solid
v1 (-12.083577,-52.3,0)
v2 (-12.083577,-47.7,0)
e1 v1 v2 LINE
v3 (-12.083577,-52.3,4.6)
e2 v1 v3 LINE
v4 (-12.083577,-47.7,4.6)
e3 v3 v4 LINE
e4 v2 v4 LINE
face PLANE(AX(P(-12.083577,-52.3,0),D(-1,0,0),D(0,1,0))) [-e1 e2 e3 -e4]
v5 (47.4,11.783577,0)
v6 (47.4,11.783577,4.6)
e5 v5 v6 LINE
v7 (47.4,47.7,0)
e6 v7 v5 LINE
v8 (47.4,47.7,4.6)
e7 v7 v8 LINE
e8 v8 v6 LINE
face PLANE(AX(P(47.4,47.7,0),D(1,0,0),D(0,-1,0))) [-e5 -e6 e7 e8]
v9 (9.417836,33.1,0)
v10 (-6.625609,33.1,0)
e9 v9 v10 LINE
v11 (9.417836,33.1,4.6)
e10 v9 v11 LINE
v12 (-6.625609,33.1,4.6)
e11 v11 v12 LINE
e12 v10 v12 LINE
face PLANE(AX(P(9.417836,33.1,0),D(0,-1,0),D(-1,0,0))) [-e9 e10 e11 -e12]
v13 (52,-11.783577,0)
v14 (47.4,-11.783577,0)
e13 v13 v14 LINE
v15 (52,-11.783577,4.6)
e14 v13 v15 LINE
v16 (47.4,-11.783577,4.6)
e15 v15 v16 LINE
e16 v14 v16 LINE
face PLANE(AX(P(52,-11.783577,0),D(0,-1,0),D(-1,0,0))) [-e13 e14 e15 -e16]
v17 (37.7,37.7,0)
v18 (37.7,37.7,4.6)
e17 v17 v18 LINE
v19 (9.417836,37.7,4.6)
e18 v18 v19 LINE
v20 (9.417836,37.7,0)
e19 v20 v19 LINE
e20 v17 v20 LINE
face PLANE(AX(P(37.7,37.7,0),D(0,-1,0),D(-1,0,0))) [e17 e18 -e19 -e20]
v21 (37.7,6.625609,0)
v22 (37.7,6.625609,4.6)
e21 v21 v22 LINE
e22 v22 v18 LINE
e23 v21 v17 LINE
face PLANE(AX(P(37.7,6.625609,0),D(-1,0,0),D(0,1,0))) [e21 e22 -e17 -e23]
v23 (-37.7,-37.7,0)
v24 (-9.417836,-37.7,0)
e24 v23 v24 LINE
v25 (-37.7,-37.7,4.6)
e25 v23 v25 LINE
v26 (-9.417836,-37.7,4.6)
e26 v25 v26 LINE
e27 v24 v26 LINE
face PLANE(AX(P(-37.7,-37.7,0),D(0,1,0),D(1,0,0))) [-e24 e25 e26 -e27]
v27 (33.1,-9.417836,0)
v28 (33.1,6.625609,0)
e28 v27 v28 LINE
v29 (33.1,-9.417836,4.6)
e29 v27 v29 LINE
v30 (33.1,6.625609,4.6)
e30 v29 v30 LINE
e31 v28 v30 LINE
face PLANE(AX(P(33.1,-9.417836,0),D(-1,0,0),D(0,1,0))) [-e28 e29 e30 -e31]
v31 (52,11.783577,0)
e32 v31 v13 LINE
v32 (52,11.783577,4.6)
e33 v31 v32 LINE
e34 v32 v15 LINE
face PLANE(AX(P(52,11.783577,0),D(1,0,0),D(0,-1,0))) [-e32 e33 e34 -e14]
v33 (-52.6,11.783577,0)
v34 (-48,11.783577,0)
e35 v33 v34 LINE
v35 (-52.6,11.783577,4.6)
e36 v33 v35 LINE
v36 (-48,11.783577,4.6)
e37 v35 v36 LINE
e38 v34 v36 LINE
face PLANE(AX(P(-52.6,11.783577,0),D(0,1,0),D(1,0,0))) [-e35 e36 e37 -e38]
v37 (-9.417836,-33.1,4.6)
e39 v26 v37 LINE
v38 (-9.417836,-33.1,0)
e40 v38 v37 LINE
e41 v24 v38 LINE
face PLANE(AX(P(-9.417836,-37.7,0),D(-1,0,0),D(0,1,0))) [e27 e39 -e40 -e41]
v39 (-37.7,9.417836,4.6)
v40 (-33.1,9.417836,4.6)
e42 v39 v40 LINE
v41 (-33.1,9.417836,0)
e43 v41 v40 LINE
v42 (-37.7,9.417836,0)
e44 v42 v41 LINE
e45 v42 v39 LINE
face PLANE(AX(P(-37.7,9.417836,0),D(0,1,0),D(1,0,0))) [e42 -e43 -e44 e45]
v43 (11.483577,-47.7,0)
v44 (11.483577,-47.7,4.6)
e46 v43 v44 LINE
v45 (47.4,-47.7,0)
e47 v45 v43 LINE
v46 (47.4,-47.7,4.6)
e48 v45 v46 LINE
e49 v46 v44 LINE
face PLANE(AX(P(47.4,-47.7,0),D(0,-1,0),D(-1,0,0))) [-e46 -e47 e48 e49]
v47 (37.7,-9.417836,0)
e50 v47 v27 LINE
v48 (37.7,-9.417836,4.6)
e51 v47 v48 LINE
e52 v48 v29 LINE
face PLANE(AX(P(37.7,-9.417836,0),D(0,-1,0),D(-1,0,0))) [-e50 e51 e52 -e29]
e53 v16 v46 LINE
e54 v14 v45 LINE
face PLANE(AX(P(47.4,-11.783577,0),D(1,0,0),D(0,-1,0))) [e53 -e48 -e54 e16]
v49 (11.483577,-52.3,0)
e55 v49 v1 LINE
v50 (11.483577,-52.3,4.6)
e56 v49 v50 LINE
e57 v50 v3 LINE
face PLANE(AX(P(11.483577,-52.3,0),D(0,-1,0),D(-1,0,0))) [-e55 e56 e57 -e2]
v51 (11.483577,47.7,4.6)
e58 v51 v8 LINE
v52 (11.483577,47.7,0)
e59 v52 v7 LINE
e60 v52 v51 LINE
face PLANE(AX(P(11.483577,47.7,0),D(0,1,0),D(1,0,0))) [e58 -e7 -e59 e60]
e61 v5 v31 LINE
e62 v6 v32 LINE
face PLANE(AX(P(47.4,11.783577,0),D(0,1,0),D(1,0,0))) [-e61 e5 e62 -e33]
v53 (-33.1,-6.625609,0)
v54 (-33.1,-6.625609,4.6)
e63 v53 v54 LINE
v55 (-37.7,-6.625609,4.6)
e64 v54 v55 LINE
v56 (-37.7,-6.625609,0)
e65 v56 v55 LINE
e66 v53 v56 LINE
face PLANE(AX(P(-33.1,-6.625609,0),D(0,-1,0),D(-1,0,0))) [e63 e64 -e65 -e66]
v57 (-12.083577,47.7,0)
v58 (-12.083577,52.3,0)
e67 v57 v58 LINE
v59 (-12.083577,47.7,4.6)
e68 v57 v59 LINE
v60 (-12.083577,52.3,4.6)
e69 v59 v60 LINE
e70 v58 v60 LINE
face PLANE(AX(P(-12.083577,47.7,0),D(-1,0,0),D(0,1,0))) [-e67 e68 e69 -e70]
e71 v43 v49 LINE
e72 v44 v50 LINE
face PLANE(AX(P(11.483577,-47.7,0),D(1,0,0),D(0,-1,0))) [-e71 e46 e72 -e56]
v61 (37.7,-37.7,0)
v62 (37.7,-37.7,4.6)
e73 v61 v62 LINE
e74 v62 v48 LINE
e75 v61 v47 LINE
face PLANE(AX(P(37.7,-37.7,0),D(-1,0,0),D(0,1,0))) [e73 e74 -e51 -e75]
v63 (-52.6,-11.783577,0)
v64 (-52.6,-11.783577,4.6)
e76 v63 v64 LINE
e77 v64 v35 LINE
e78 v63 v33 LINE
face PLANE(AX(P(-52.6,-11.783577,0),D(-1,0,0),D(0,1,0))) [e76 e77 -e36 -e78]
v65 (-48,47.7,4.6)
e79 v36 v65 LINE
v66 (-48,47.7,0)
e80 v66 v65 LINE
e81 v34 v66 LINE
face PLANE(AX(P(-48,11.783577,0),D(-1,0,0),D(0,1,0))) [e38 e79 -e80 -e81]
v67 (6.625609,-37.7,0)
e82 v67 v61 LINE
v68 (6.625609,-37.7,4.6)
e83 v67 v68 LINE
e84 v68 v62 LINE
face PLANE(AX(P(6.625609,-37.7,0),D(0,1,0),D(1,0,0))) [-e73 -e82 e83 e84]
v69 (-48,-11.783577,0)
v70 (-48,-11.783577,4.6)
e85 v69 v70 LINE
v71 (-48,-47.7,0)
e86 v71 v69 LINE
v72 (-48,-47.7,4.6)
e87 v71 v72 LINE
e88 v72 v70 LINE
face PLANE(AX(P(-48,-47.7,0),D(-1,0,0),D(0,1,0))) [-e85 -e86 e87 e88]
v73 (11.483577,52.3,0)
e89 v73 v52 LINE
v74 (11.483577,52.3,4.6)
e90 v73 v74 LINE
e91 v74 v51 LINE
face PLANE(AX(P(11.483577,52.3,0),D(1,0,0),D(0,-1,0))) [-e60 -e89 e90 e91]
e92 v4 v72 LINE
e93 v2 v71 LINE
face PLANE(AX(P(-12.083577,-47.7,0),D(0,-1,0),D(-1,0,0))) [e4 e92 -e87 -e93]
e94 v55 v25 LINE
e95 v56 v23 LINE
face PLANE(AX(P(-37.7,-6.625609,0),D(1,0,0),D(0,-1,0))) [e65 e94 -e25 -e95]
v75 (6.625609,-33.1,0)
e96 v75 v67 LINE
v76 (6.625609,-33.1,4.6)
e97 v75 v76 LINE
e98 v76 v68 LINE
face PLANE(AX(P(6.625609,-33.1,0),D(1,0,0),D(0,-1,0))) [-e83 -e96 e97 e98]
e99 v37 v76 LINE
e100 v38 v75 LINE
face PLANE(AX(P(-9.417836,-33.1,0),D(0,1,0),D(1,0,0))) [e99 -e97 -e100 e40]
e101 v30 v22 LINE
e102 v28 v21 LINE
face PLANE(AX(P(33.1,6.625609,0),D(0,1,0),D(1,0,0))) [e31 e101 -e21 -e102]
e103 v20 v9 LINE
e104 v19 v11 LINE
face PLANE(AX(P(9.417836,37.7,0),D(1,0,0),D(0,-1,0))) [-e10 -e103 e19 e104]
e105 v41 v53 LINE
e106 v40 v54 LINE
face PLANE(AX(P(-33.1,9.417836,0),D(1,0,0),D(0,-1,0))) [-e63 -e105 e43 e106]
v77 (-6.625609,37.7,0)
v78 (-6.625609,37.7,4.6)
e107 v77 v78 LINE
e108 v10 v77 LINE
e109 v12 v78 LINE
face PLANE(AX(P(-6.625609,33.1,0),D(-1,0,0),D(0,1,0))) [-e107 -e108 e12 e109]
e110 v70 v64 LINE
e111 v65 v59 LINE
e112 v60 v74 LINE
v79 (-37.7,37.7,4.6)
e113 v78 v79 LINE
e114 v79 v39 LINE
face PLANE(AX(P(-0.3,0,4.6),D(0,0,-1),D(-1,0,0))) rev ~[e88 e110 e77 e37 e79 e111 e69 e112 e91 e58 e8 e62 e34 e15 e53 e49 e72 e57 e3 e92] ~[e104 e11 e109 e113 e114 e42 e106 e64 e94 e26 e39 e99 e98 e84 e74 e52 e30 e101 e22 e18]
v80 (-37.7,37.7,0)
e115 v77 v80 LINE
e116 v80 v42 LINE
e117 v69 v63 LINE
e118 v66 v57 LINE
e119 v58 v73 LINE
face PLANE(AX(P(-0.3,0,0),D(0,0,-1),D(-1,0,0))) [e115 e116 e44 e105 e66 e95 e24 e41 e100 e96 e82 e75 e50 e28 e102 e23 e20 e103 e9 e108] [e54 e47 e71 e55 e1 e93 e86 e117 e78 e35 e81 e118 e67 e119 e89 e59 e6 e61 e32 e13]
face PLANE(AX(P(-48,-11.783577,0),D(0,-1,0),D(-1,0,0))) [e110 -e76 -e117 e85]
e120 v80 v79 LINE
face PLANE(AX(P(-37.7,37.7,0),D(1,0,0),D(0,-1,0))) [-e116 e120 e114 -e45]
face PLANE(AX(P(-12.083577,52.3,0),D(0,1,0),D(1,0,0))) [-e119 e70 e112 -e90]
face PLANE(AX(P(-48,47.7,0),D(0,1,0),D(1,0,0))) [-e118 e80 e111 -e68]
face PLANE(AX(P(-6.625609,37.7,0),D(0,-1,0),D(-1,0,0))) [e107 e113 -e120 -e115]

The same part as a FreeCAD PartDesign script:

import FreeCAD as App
import Part
import Sketcher

doc = App.newDocument("Part")
body = doc.addObject("PartDesign::Body", "Body")

sketch1 = body.newObject("Sketcher::SketchObject", "Sketch")
sketch1.AttachmentSupport = (doc.getObject("XY_Plane"), [""])
sketch1.MapMode = "FlatFace"
sketch1.addGeometry(Part.LineSegment(App.Vector(52, 11.8, 0), App.Vector(47.4, 11.8, 0)), False)
sketch1.addGeometry(Part.LineSegment(App.Vector(47.4, 11.8, 0), App.Vector(47.4, 47.7, 0)), False)
sketch1.addGeometry(Part.LineSegment(App.Vector(47.4, 47.7, 0), App.Vector(11.5, 47.7, 0)), False)
sketch1.addGeometry(Part.LineSegment(App.Vector(11.5, 47.7, 0), App.Vector(11.5, 52.3, 0)), False)
sketch1.addGeometry(Part.LineSegment(App.Vector(11.5, 52.3, 0), App.Vector(-12.1, 52.3, 0)), False)
sketch1.addGeometry(Part.LineSegment(App.Vector(-12.1, 52.3, 0), App.Vector(-12.1, 47.7, 0)), False)
sketch1.addGeometry(Part.LineSegment(App.Vector(-12.1, 47.7, 0), App.Vector(-48, 47.7, 0)), False)
sketch1.addGeometry(Part.LineSegment(App.Vector(-48, 47.7, 0), App.Vector(-48, 11.8, 0)), False)
sketch1.addGeometry(Part.LineSegment(App.Vector(-48, 11.8, 0), App.Vector(-52.6, 11.8, 0)), False)
sketch1.addGeometry(Part.LineSegment(App.Vector(-52.6, 11.8, 0), App.Vector(-52.6, -11.8, 0)), False)
sketch1.addGeometry(Part.LineSegment(App.Vector(-52.6, -11.8, 0), App.Vector(-48, -11.8, 0)), False)
sketch1.addGeometry(Part.LineSegment(App.Vector(-48, -11.8, 0), App.Vector(-48, -47.7, 0)), False)
sketch1.addGeometry(Part.LineSegment(App.Vector(-48, -47.7, 0), App.Vector(-12.1, -47.7, 0)), False)
sketch1.addGeometry(Part.LineSegment(App.Vector(-12.1, -47.7, 0), App.Vector(-12.1, -52.3, 0)), False)
sketch1.addGeometry(Part.LineSegment(App.Vector(-12.1, -52.3, 0), App.Vector(11.5, -52.3, 0)), False)
sketch1.addGeometry(Part.LineSegment(App.Vector(11.5, -52.3, 0), App.Vector(11.5, -47.7, 0)), False)
sketch1.addGeometry(Part.LineSegment(App.Vector(11.5, -47.7, 0), App.Vector(47.4, -47.7, 0)), False)
sketch1.addGeometry(Part.LineSegment(App.Vector(47.4, -47.7, 0), App.Vector(47.4, -11.8, 0)), False)
sketch1.addGeometry(Part.LineSegment(App.Vector(47.4, -11.8, 0), App.Vector(52, -11.8, 0)), False)
sketch1.addGeometry(Part.LineSegment(App.Vector(52, -11.8, 0), App.Vector(52, 11.8, 0)), False)
sketch1.addConstraint(Sketcher.Constraint("Coincident", 0, 2, 1, 1))
sketch1.addConstraint(Sketcher.Constraint("Coincident", 1, 2, 2, 1))
sketch1.addConstraint(Sketcher.Constraint("Coincident", 2, 2, 3, 1))
sketch1.addConstraint(Sketcher.Constraint("Coincident", 3, 2, 4, 1))
sketch1.addConstraint(Sketcher.Constraint("Coincident", 4, 2, 5, 1))
sketch1.addConstraint(Sketcher.Constraint("Coincident", 5, 2, 6, 1))
sketch1.addConstraint(Sketcher.Constraint("Coincident", 6, 2, 7, 1))
sketch1.addConstraint(Sketcher.Constraint("Coincident", 7, 2, 8, 1))
sketch1.addConstraint(Sketcher.Constraint("Coincident", 8, 2, 9, 1))
sketch1.addConstraint(Sketcher.Constraint("Coincident", 9, 2, 10, 1))
sketch1.addConstraint(Sketcher.Constraint("Coincident", 10, 2, 11, 1))
sketch1.addConstraint(Sketcher.Constraint("Coincident", 11, 2, 12, 1))
sketch1.addConstraint(Sketcher.Constraint("Coincident", 12, 2, 13, 1))
sketch1.addConstraint(Sketcher.Constraint("Coincident", 13, 2, 14, 1))
sketch1.addConstraint(Sketcher.Constraint("Coincident", 14, 2, 15, 1))
sketch1.addConstraint(Sketcher.Constraint("Coincident", 15, 2, 16, 1))
sketch1.addConstraint(Sketcher.Constraint("Coincident", 16, 2, 17, 1))
sketch1.addConstraint(Sketcher.Constraint("Coincident", 17, 2, 18, 1))
sketch1.addConstraint(Sketcher.Constraint("Coincident", 18, 2, 19, 1))
sketch1.addConstraint(Sketcher.Constraint("Coincident", 19, 2, 0, 1))
sketch1.addConstraint(Sketcher.Constraint("Horizontal", 0))
sketch1.addConstraint(Sketcher.Constraint("Vertical", 1))
sketch1.addConstraint(Sketcher.Constraint("Horizontal", 2))
sketch1.addConstraint(Sketcher.Constraint("Vertical", 3))
sketch1.addConstraint(Sketcher.Constraint("Horizontal", 4))
sketch1.addConstraint(Sketcher.Constraint("Vertical", 5))
sketch1.addConstraint(Sketcher.Constraint("Horizontal", 6))
sketch1.addConstraint(Sketcher.Constraint("Vertical", 7))
sketch1.addConstraint(Sketcher.Constraint("Horizontal", 8))
sketch1.addConstraint(Sketcher.Constraint("Vertical", 9))
sketch1.addConstraint(Sketcher.Constraint("Horizontal", 10))
sketch1.addConstraint(Sketcher.Constraint("Vertical", 11))
sketch1.addConstraint(Sketcher.Constraint("Horizontal", 12))
sketch1.addConstraint(Sketcher.Constraint("Vertical", 13))
sketch1.addConstraint(Sketcher.Constraint("Horizontal", 14))
sketch1.addConstraint(Sketcher.Constraint("Vertical", 15))
sketch1.addConstraint(Sketcher.Constraint("Horizontal", 16))
sketch1.addConstraint(Sketcher.Constraint("Vertical", 17))
sketch1.addConstraint(Sketcher.Constraint("Horizontal", 18))
sketch1.addConstraint(Sketcher.Constraint("Vertical", 19))
sketch1.addConstraint(Sketcher.Constraint("Symmetric", 7, 2, 10, 2, -1))
sketch1.addConstraint(Sketcher.Constraint("Symmetric", 5, 2, 12, 2, -1))
sketch1.addConstraint(Sketcher.Constraint("Symmetric", 3, 2, 14, 2, -1))
sketch1.addConstraint(Sketcher.Constraint("Symmetric", 1, 2, 16, 2, -1))
sketch1.addConstraint(Sketcher.Constraint("Horizontal", 2, 2, 5, 2))
sketch1.addConstraint(Sketcher.Constraint("Horizontal", 0, 2, 7, 2))
sketch1.addConstraint(Sketcher.Constraint("Horizontal", 10, 2, 17, 2))
sketch1.addConstraint(Sketcher.Constraint("Equal", 2, 6))
sketch1.addConstraint(Sketcher.Constraint("Equal", 0, 8))
sketch1.addConstraint(Sketcher.Constraint("Equal", 16, 1))
sketch1.addConstraint(Sketcher.Constraint("Equal", 18, 3))
sketch1.addConstraint(Sketcher.Constraint("Equal", 14, 9))
sketch1.addConstraint(Sketcher.Constraint("DistanceX", 0, 2, 0, 1, 4.6))
sketch1.addConstraint(Sketcher.Constraint("DistanceX", 6, 2, -1, 1, 48.0))
sketch1.addConstraint(Sketcher.Constraint("DistanceX", -1, 1, 18, 2, 52.0))
sketch1.addConstraint(Sketcher.Constraint("DistanceX", 2, 2, 2, 1, 35.916423))
pad1 = body.newObject("PartDesign::Pad", "Pad")
pad1.Profile = sketch1
pad1.Length = 4.6

sketch2 = body.newObject("Sketcher::SketchObject", "Sketch001")
sketch2.AttachmentSupport = (doc.getObject("XY_Plane"), [""])
sketch2.MapMode = "FlatFace"
sketch2.addGeometry(Part.LineSegment(App.Vector(-9.4, -33.1, 0), App.Vector(-9.4, -37.7, 0)), False)
sketch2.addGeometry(Part.LineSegment(App.Vector(-9.4, -37.7, 0), App.Vector(-37.7, -37.7, 0)), False)
sketch2.addGeometry(Part.LineSegment(App.Vector(-37.7, -37.7, 0), App.Vector(-37.7, -6.6, 0)), False)
sketch2.addGeometry(Part.LineSegment(App.Vector(-37.7, -6.6, 0), App.Vector(-33.1, -6.6, 0)), False)
sketch2.addGeometry(Part.LineSegment(App.Vector(-33.1, -6.6, 0), App.Vector(-33.1, 9.4, 0)), False)
sketch2.addGeometry(Part.LineSegment(App.Vector(-33.1, 9.4, 0), App.Vector(-37.7, 9.4, 0)), False)
sketch2.addGeometry(Part.LineSegment(App.Vector(-37.7, 9.4, 0), App.Vector(-37.7, 37.7, 0)), False)
sketch2.addGeometry(Part.LineSegment(App.Vector(-37.7, 37.7, 0), App.Vector(-6.6, 37.7, 0)), False)
sketch2.addGeometry(Part.LineSegment(App.Vector(-6.6, 37.7, 0), App.Vector(-6.6, 33.1, 0)), False)
sketch2.addGeometry(Part.LineSegment(App.Vector(-6.6, 33.1, 0), App.Vector(9.4, 33.1, 0)), False)
sketch2.addGeometry(Part.LineSegment(App.Vector(9.4, 33.1, 0), App.Vector(9.4, 37.7, 0)), False)
sketch2.addGeometry(Part.LineSegment(App.Vector(9.4, 37.7, 0), App.Vector(37.7, 37.7, 0)), False)
sketch2.addGeometry(Part.LineSegment(App.Vector(37.7, 37.7, 0), App.Vector(37.7, 6.6, 0)), False)
sketch2.addGeometry(Part.LineSegment(App.Vector(37.7, 6.6, 0), App.Vector(33.1, 6.6, 0)), False)
sketch2.addGeometry(Part.LineSegment(App.Vector(33.1, 6.6, 0), App.Vector(33.1, -9.4, 0)), False)
sketch2.addGeometry(Part.LineSegment(App.Vector(33.1, -9.4, 0), App.Vector(37.7, -9.4, 0)), False)
sketch2.addGeometry(Part.LineSegment(App.Vector(37.7, -9.4, 0), App.Vector(37.7, -37.7, 0)), False)
sketch2.addGeometry(Part.LineSegment(App.Vector(37.7, -37.7, 0), App.Vector(6.6, -37.7, 0)), False)
sketch2.addGeometry(Part.LineSegment(App.Vector(6.6, -37.7, 0), App.Vector(6.6, -33.1, 0)), False)
sketch2.addGeometry(Part.LineSegment(App.Vector(6.6, -33.1, 0), App.Vector(-9.4, -33.1, 0)), False)
sketch2.addConstraint(Sketcher.Constraint("Coincident", 0, 2, 1, 1))
sketch2.addConstraint(Sketcher.Constraint("Coincident", 1, 2, 2, 1))
sketch2.addConstraint(Sketcher.Constraint("Coincident", 2, 2, 3, 1))
sketch2.addConstraint(Sketcher.Constraint("Coincident", 3, 2, 4, 1))
sketch2.addConstraint(Sketcher.Constraint("Coincident", 4, 2, 5, 1))
sketch2.addConstraint(Sketcher.Constraint("Coincident", 5, 2, 6, 1))
sketch2.addConstraint(Sketcher.Constraint("Coincident", 6, 2, 7, 1))
sketch2.addConstraint(Sketcher.Constraint("Coincident", 7, 2, 8, 1))
sketch2.addConstraint(Sketcher.Constraint("Coincident", 8, 2, 9, 1))
sketch2.addConstraint(Sketcher.Constraint("Coincident", 9, 2, 10, 1))
sketch2.addConstraint(Sketcher.Constraint("Coincident", 10, 2, 11, 1))
sketch2.addConstraint(Sketcher.Constraint("Coincident", 11, 2, 12, 1))
sketch2.addConstraint(Sketcher.Constraint("Coincident", 12, 2, 13, 1))
sketch2.addConstraint(Sketcher.Constraint("Coincident", 13, 2, 14, 1))
sketch2.addConstraint(Sketcher.Constraint("Coincident", 14, 2, 15, 1))
sketch2.addConstraint(Sketcher.Constraint("Coincident", 15, 2, 16, 1))
sketch2.addConstraint(Sketcher.Constraint("Coincident", 16, 2, 17, 1))
sketch2.addConstraint(Sketcher.Constraint("Coincident", 17, 2, 18, 1))
sketch2.addConstraint(Sketcher.Constraint("Coincident", 18, 2, 19, 1))
sketch2.addConstraint(Sketcher.Constraint("Coincident", 19, 2, 0, 1))
sketch2.addConstraint(Sketcher.Constraint("Vertical", 0))
sketch2.addConstraint(Sketcher.Constraint("Horizontal", 1))
sketch2.addConstraint(Sketcher.Constraint("Vertical", 2))
sketch2.addConstraint(Sketcher.Constraint("Horizontal", 3))
sketch2.addConstraint(Sketcher.Constraint("Vertical", 4))
sketch2.addConstraint(Sketcher.Constraint("Horizontal", 5))
sketch2.addConstraint(Sketcher.Constraint("Vertical", 6))
sketch2.addConstraint(Sketcher.Constraint("Horizontal", 7))
sketch2.addConstraint(Sketcher.Constraint("Vertical", 8))
sketch2.addConstraint(Sketcher.Constraint("Horizontal", 9))
sketch2.addConstraint(Sketcher.Constraint("Vertical", 10))
sketch2.addConstraint(Sketcher.Constraint("Horizontal", 11))
sketch2.addConstraint(Sketcher.Constraint("Vertical", 12))
sketch2.addConstraint(Sketcher.Constraint("Horizontal", 13))
sketch2.addConstraint(Sketcher.Constraint("Vertical", 14))
sketch2.addConstraint(Sketcher.Constraint("Horizontal", 15))
sketch2.addConstraint(Sketcher.Constraint("Vertical", 16))
sketch2.addConstraint(Sketcher.Constraint("Horizontal", 17))
sketch2.addConstraint(Sketcher.Constraint("Vertical", 18))
sketch2.addConstraint(Sketcher.Constraint("Horizontal", 19))
sketch2.addConstraint(Sketcher.Constraint("Symmetric", 0, 2, 10, 2, -1, 1))
sketch2.addConstraint(Sketcher.Constraint("Symmetric", 2, 2, 12, 2, -1, 1))
sketch2.addConstraint(Sketcher.Constraint("Symmetric", 4, 2, 14, 2, -1, 1))
sketch2.addConstraint(Sketcher.Constraint("Symmetric", 6, 2, 16, 2, -1, 1))
sketch2.addConstraint(Sketcher.Constraint("Symmetric", 8, 2, 18, 2, -1, 1))
sketch2.addConstraint(Sketcher.Constraint("Symmetric", 6, 2, 11, 2, -2))
sketch2.addConstraint(Sketcher.Constraint("Equal", 15, 0))
sketch2.addConstraint(Sketcher.Constraint("Equal", 17, 2))
sketch2.addConstraint(Sketcher.Constraint("Equal", 19, 4))
sketch2.addConstraint(Sketcher.Constraint("Equal", 11, 6))
sketch2.addConstraint(Sketcher.Constraint("DistanceX", 3, 1, 3, 2, 4.6))
sketch2.addConstraint(Sketcher.Constraint("DistanceY", 0, 2, -1, 1, 37.7))
sketch2.addConstraint(Sketcher.Constraint("DistanceX", 7, 1, 7, 2, 31.074391))
sketch2.addConstraint(Sketcher.Constraint("DistanceX", 1, 2, 1, 1, 28.282164))
pocket1 = body.newObject("PartDesign::Pocket", "Pocket")
pocket1.Profile = sketch2
pocket1.Type = "ThroughAll"
pocket1.Reversed = True

doc.recompute()
